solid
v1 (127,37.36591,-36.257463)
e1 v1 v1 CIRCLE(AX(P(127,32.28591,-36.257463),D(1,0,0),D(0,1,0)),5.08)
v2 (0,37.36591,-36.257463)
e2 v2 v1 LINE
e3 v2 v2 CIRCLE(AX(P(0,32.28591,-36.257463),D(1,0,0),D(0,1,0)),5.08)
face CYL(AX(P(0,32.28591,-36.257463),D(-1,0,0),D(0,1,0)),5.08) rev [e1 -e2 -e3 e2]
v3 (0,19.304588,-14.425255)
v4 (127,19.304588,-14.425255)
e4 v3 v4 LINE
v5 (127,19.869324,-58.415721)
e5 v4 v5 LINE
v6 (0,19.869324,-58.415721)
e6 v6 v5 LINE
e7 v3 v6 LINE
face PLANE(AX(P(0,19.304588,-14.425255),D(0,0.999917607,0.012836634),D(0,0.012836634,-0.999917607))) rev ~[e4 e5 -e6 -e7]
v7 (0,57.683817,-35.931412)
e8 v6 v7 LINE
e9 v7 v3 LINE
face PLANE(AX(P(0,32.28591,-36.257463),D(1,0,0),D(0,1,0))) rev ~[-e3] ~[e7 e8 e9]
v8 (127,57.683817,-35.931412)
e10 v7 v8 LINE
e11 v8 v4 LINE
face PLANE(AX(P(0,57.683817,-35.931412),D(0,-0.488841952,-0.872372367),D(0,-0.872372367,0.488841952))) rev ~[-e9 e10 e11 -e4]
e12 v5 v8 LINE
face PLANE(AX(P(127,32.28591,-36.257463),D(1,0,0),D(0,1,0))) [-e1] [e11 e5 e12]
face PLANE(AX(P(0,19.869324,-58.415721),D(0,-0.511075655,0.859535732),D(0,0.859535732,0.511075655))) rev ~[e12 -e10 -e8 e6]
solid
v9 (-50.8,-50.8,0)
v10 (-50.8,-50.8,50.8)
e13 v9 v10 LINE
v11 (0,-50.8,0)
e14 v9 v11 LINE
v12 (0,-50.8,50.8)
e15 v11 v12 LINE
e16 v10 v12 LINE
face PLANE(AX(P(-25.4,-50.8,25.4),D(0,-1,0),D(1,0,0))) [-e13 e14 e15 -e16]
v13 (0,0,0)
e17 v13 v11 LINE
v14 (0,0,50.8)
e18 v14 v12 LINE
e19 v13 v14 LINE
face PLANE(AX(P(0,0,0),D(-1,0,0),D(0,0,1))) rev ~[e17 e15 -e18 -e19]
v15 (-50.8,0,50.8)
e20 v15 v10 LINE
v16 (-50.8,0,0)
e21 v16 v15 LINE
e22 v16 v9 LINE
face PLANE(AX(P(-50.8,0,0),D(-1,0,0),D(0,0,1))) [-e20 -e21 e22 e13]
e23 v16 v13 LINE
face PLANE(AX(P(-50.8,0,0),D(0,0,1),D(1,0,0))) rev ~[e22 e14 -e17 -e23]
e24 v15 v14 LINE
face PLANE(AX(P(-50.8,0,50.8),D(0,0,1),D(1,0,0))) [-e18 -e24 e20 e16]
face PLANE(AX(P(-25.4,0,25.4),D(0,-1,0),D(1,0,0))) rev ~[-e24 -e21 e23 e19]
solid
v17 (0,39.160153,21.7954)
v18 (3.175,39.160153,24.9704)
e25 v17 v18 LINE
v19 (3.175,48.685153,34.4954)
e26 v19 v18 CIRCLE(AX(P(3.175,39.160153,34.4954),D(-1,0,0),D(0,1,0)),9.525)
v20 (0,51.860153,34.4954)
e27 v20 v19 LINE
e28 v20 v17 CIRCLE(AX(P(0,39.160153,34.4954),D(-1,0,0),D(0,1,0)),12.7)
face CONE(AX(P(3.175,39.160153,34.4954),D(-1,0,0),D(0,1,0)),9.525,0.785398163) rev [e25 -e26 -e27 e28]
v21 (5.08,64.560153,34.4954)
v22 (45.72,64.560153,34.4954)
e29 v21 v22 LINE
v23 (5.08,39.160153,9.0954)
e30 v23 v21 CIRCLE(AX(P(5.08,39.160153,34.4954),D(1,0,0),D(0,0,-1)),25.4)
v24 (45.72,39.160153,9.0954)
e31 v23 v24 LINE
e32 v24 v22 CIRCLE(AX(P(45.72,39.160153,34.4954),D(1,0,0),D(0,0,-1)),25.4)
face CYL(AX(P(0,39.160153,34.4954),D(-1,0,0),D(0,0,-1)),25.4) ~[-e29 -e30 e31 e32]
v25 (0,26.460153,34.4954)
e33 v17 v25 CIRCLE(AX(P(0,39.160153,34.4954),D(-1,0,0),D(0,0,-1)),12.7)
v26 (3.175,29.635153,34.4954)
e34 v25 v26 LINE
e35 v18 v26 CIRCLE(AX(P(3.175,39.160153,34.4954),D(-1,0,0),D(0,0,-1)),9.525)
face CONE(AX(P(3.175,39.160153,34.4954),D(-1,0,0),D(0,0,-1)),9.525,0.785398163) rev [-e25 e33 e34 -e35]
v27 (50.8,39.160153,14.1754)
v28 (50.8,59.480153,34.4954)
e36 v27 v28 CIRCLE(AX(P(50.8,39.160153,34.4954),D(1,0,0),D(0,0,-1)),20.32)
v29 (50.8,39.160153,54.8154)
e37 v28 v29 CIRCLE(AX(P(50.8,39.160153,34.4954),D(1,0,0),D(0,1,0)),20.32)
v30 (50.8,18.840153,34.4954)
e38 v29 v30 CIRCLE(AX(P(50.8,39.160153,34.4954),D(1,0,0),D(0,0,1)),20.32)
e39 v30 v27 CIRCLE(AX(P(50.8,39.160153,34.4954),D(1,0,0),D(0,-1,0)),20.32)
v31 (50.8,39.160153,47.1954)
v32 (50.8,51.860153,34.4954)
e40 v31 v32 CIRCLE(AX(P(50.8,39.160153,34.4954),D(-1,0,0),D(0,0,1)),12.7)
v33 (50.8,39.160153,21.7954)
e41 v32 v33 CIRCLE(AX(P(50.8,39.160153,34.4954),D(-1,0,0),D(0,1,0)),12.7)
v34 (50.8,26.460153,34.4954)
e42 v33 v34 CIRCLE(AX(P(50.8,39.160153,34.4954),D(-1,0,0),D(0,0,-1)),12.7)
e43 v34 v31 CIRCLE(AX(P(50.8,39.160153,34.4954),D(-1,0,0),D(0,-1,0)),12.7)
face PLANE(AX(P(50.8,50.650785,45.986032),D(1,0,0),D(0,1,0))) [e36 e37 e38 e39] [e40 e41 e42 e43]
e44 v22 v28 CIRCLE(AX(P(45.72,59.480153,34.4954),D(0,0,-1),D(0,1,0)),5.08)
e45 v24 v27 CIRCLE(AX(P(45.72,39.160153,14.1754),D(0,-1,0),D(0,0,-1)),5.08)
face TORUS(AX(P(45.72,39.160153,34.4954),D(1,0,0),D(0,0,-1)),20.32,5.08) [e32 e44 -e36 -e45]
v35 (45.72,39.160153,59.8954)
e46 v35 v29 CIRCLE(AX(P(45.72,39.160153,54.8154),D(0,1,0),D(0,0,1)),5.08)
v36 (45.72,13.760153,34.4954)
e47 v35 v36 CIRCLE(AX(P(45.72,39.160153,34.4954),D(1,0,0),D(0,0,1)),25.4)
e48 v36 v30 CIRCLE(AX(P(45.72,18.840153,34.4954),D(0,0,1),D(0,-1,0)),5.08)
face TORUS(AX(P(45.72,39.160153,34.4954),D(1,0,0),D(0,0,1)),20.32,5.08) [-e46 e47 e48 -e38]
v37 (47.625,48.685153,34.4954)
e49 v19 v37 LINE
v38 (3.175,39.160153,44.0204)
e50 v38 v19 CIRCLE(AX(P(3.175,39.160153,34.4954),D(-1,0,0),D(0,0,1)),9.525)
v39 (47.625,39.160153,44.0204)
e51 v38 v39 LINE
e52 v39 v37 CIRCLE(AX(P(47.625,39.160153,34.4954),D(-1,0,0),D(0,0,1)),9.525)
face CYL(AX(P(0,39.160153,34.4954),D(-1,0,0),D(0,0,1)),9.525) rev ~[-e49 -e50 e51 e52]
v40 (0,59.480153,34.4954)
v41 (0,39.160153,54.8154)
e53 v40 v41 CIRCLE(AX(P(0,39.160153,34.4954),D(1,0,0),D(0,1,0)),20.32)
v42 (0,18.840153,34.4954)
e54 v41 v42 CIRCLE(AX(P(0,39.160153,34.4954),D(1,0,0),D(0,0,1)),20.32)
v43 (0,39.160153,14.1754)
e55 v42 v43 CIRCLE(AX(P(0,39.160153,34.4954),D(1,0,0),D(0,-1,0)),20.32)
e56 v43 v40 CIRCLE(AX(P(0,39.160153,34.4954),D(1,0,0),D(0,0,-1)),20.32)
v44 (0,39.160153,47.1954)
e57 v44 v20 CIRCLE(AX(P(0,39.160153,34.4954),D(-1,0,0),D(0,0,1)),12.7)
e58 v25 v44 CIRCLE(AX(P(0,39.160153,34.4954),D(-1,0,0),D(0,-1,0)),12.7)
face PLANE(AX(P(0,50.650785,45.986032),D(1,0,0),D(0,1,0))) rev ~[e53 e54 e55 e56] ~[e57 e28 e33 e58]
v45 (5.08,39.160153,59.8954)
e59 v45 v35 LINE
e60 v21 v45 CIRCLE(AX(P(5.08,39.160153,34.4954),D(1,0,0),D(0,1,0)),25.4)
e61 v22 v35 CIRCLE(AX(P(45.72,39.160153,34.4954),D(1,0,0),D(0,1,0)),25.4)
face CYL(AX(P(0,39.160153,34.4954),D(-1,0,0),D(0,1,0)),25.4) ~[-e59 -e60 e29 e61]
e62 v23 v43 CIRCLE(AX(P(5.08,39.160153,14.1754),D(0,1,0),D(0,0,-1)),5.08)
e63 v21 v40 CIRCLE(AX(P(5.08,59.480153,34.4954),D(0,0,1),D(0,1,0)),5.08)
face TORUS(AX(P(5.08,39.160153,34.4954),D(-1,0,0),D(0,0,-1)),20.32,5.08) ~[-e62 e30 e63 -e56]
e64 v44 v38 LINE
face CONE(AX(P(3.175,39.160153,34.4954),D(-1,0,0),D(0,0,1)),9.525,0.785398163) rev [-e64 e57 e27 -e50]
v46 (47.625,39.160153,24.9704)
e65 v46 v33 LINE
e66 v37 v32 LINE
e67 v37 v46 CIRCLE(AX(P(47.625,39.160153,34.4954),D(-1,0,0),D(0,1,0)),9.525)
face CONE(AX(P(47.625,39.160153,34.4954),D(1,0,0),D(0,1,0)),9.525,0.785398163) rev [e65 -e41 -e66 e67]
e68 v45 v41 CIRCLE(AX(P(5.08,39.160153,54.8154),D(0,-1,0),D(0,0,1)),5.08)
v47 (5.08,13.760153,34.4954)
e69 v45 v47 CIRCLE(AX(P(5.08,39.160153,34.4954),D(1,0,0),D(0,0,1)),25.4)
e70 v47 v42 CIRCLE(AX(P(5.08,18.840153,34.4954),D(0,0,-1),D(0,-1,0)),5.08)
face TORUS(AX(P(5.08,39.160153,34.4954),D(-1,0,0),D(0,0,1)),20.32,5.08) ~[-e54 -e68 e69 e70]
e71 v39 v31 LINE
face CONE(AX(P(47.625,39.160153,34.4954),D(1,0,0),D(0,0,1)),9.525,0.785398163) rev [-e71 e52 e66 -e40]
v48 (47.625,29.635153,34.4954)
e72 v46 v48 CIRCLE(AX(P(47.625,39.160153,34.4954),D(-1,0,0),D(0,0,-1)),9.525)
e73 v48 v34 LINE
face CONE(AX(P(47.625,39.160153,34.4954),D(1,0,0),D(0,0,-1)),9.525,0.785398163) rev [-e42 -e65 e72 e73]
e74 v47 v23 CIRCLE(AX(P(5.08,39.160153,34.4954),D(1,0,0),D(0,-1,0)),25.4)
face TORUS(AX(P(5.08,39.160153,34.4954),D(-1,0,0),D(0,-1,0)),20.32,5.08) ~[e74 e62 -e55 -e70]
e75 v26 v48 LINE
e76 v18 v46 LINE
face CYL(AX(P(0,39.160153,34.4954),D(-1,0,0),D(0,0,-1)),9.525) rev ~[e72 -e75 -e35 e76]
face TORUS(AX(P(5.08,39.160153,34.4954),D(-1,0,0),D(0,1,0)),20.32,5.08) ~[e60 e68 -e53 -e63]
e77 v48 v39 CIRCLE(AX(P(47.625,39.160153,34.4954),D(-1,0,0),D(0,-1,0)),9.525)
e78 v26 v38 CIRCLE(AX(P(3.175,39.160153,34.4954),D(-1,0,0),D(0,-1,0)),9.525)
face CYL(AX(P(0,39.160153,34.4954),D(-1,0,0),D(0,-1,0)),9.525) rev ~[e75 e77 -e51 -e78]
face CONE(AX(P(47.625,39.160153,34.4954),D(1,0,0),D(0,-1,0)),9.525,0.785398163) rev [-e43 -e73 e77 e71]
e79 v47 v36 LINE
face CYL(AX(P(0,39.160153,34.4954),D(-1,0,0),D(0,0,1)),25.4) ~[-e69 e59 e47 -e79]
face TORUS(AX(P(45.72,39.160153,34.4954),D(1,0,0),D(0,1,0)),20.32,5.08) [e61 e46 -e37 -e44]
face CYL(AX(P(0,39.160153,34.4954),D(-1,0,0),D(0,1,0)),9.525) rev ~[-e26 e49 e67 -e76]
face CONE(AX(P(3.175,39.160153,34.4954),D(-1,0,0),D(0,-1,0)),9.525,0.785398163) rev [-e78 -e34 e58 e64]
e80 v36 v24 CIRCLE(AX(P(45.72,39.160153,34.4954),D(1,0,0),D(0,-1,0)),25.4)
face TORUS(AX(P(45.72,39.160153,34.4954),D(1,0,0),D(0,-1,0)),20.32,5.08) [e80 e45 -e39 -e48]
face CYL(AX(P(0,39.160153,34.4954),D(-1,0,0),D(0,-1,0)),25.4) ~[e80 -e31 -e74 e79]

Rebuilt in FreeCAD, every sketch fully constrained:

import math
import FreeCAD as App
import Part
import Sketcher

V = App.Vector
Q = App.Units.Quantity


def edges_at(feature, points):
    """Names of the edges that pass closest to the given points."""
    edges = feature.Shape.Edges
    near = lambda p: min(range(len(edges)), key=lambda i: edges[i].distToShape(Part.Vertex(*p))[0])
    return sorted({f"Edge{near(p) + 1}" for p in points})


def add_polygon(sketch, points):
    """Adds a closed chain of lines whose ends are joined by coincident constraints."""
    first, n = sketch.GeometryCount, len(points)
    for a, b in zip(points, points[1:] + points[:1]):
        sketch.addGeometry(Part.LineSegment(App.Vector(*a, 0), App.Vector(*b, 0)), False)
    for i in range(n):
        sketch.addConstraint(Sketcher.Constraint("Coincident", first + i, 2, first + (i + 1) % n, 1))

doc = App.newDocument("Part")
body = doc.addObject("PartDesign::Body", "Body")

sketch1 = body.newObject("Sketcher::SketchObject", "Sketch")
sketch1.AttachmentSupport = (doc.getObject("XZ_Plane"), [""])
sketch1.MapMode = "FlatFace"
add_polygon(sketch1, [(-50.8, 50.8), (-50.8, 0), (0, 0), (0, 50.8)])
sketch1.addConstraint(Sketcher.Constraint("Vertical", 0))
sketch1.addConstraint(Sketcher.Constraint("Horizontal", 1))
sketch1.addConstraint(Sketcher.Constraint("Vertical", 2))
sketch1.addConstraint(Sketcher.Constraint("Horizontal", 3))
sketch1.addConstraint(Sketcher.Constraint("Coincident", 1, 2, -1, 1))
sketch1.addConstraint(Sketcher.Constraint("Equal", 3, 0))
sketch1.addConstraint(Sketcher.Constraint("DistanceX", 1, 1, 1, 2, Q("2 in")))
pad1 = body.newObject("PartDesign::Pad", "Pad")
pad1.Profile = sketch1
pad1.Length = Q("2 in")
body2 = doc.addObject("PartDesign::Body", "Body001")

sketch2 = body2.newObject("Sketcher::SketchObject", "Sketch001")
sketch2.AttachmentSupport = (doc.getObject("YZ_Plane001"), [""])
sketch2.MapMode = "FlatFace"
sketch2.addGeometry(Part.ArcOfCircle(Part.Circle(V(39.160153, 34.4954, 0), V(0, 0, 1), 25.4), math.radians(0), math.radians(90)), False)
sketch2.addGeometry(Part.ArcOfCircle(Part.Circle(V(39.160153, 34.4954, 0), V(0, 0, 1), 25.4), math.radians(90), math.radians(180)), False)
sketch2.addGeometry(Part.ArcOfCircle(Part.Circle(V(39.160153, 34.4954, 0), V(0, 0, 1), 25.4), math.radians(180), math.radians(270)), False)
sketch2.addGeometry(Part.ArcOfCircle(Part.Circle(V(39.160153, 34.4954, 0), V(0, 0, 1), 25.4), math.radians(-90), math.radians(0)), False)
sketch2.addGeometry(Part.ArcOfCircle(Part.Circle(V(39.160153, 34.4954, 0), V(0, 0, 1), 9.525), math.radians(180), math.radians(270)), False)
sketch2.addGeometry(Part.ArcOfCircle(Part.Circle(V(39.160153, 34.4954, 0), V(0, 0, 1), 9.525), math.radians(90), math.radians(180)), False)
sketch2.addGeometry(Part.ArcOfCircle(Part.Circle(V(39.160153, 34.4954, 0), V(0, 0, 1), 9.525), math.radians(0), math.radians(90)), False)
sketch2.addGeometry(Part.ArcOfCircle(Part.Circle(V(39.160153, 34.4954, 0), V(0, 0, 1), 9.525), math.radians(-90), math.radians(0)), False)
sketch2.addConstraint(Sketcher.Constraint("Tangent", 0, 2, 1, 1))
sketch2.addConstraint(Sketcher.Constraint("Tangent", 1, 2, 2, 1))
sketch2.addConstraint(Sketcher.Constraint("Tangent", 2, 2, 3, 1))
sketch2.addConstraint(Sketcher.Constraint("Tangent", 3, 2, 0, 1))
sketch2.addConstraint(Sketcher.Constraint("Tangent", 4, 1, 5, 2))
sketch2.addConstraint(Sketcher.Constraint("Tangent", 5, 1, 6, 2))
sketch2.addConstraint(Sketcher.Constraint("Tangent", 6, 1, 7, 2))
sketch2.addConstraint(Sketcher.Constraint("Tangent", 7, 1, 4, 2))
sketch2.addConstraint(Sketcher.Constraint("Coincident", 4, 3, 0, 3))
sketch2.addConstraint(Sketcher.Constraint("Equal", 0, 1))
sketch2.addConstraint(Sketcher.Constraint("Equal", 4, 5))
sketch2.addConstraint(Sketcher.Constraint("Horizontal", 7, 3, 1, 2))
sketch2.addConstraint(Sketcher.Constraint("Horizontal", 1, 2, 3, 2))
sketch2.addConstraint(Sketcher.Constraint("Horizontal", 3, 2, 4, 1))
sketch2.addConstraint(Sketcher.Constraint("Horizontal", 4, 1, 6, 1))
sketch2.addConstraint(Sketcher.Constraint("Vertical", 7, 3, 0, 2))
sketch2.addConstraint(Sketcher.Constraint("Vertical", 0, 2, 2, 2))
sketch2.addConstraint(Sketcher.Constraint("Vertical", 2, 2, 5, 1))
sketch2.addConstraint(Sketcher.Constraint("Vertical", 5, 1, 7, 1))
sketch2.addConstraint(Sketcher.Constraint("Radius", 0, Q("1 in")))
sketch2.addConstraint(Sketcher.Constraint("Radius", 4, Q("0.375 in")))
sketch2.addConstraint(Sketcher.Constraint("DistanceY", -1, 1, 0, 3, Q("34.4954 mm")))
sketch2.addConstraint(Sketcher.Constraint("DistanceX", -1, 1, 0, 3, Q("39.160153 mm")))
pad2 = body2.newObject("PartDesign::Pad", "Pad001")
pad2.Profile = sketch2
pad2.Length = Q("2 in")
doc.recompute()

fillet = body2.newObject("PartDesign::Fillet", "Fillet")
fillet.Base = (pad2, edges_at(pad2, [(50.8, 57.121, 52.456), (0, 57.121, 52.456)]))
fillet.Radius = Q("0.2 in")
doc.recompute()

chamfer = body2.newObject("PartDesign::Chamfer", "Chamfer")
chamfer.Base = (fillet, edges_at(fillet, [(0, 32.425, 27.76)]))
chamfer.Size = Q("0.125 in")
doc.recompute()

chamfer2 = body2.newObject("PartDesign::Chamfer", "Chamfer001")
chamfer2.Base = (chamfer, edges_at(chamfer, [(50.8, 32.425, 27.76)]))
chamfer2.Size = Q("0.125 in")
body3 = doc.addObject("PartDesign::Body", "Body002")

sketch3 = body3.newObject("Sketcher::SketchObject", "Sketch002")
sketch3.AttachmentSupport = (doc.getObject("YZ_Plane002"), [""])
sketch3.MapMode = "FlatFace"
add_polygon(sketch3, [(19.869324, -58.415721), (57.683817, -35.931412), (19.304588, -14.425255)])
sketch3.addGeometry(Part.Circle(V(32.28591, -36.257463, 0), V(0, 0, 1), 5.08), False)
sketch3.addConstraint(Sketcher.Constraint("Equal", 0, 1))
sketch3.addConstraint(Sketcher.Constraint("Equal", 1, 2))
sketch3.addConstraint(Sketcher.Constraint("Diameter", 3, Q("0.4 in")))
sketch3.addConstraint(Sketcher.Constraint("Distance", 0, Q("43.994091 mm")))
sketch3.addConstraint(Sketcher.Constraint("DistanceX", -1, 1, 3, 3, Q("32.28591 mm")))
sketch3.addConstraint(Sketcher.Constraint("DistanceY", 2, 2, -1, 1, Q("58.415721 mm")))
sketch3.addConstraint(Sketcher.Constraint("DistanceY", 3, 3, 0, 2, Q("0.326051 mm")))
sketch3.addConstraint(Sketcher.Constraint("DistanceX", 1, 2, 3, 3, Q("12.981322 mm")))
sketch3.addConstraint(Sketcher.Constraint("DistanceX", 1, 2, 0, 2, Q("38.379229 mm")))
pad3 = body3.newObject("PartDesign::Pad", "Pad002")
pad3.Profile = sketch3
pad3.Length = Q("5 in")

doc.recompute()
